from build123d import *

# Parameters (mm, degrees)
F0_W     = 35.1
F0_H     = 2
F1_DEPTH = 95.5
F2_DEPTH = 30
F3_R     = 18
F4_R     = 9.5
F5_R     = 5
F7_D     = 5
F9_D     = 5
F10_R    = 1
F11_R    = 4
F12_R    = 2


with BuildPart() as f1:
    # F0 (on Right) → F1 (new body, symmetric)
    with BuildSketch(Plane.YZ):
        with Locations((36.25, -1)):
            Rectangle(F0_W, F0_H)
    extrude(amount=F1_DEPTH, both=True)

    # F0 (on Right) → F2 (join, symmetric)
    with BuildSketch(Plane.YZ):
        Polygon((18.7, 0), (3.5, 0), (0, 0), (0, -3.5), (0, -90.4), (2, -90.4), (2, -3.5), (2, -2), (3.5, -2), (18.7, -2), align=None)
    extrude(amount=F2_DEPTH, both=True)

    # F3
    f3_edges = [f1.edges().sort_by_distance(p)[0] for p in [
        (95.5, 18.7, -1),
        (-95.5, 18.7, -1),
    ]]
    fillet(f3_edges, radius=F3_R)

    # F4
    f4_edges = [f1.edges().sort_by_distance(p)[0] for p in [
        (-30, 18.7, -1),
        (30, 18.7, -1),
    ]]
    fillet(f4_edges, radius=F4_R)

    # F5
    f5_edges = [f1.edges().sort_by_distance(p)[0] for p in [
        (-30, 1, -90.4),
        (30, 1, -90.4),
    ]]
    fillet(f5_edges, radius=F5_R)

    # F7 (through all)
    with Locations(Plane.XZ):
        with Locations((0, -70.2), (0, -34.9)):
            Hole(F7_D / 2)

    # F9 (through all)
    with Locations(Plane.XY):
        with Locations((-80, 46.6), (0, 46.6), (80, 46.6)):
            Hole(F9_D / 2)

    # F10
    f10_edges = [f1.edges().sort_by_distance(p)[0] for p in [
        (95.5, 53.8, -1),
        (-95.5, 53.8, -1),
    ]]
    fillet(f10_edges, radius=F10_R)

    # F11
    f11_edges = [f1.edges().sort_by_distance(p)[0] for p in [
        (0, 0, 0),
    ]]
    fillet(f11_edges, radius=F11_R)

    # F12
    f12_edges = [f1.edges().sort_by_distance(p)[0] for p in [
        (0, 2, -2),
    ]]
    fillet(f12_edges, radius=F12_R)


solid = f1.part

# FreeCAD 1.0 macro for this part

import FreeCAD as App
import Part
import Sketcher
from FreeCAD import Vector
Q = App.Units.Quantity


def edges_at(feature, points):
    """Names of the edges that pass closest to the given points."""
    edges = feature.Shape.Edges
    near = lambda p: min(range(len(edges)), key=lambda i: edges[i].distToShape(Part.Vertex(*p))[0])
    return sorted({f"Edge{near(p) + 1}" for p in points})

doc = App.newDocument("Part")
body = doc.addObject("PartDesign::Body", "Body")

# Sketch on YZ plane
sketch1 = doc.addObject("Sketcher::SketchObject", "Sketch")
body.addObject(sketch1)
sketch1.AttachmentSupport = (doc.YZ_Plane, [""])
sketch1.MapMode = "FlatFace"
sketch1.addGeometry(Part.LineSegment(Vector(18.7, 0, 0), Vector(18.7, -2, 0)), False)
sketch1.addGeometry(Part.LineSegment(Vector(18.7, -2, 0), Vector(53.8, -2, 0)), False)
sketch1.addGeometry(Part.LineSegment(Vector(53.8, -2, 0), Vector(53.8, 0, 0)), False)
sketch1.addGeometry(Part.LineSegment(Vector(53.8, 0, 0), Vector(18.7, 0, 0)), False)
sketch1.addConstraint(Sketcher.Constraint("Coincident", 0, 2, 1, 1))
sketch1.addConstraint(Sketcher.Constraint("Coincident", 1, 2, 2, 1))
sketch1.addConstraint(Sketcher.Constraint("Coincident", 2, 2, 3, 1))
sketch1.addConstraint(Sketcher.Constraint("Coincident", 3, 2, 0, 1))
sketch1.addConstraint(Sketcher.Constraint("Vertical", 0))
sketch1.addConstraint(Sketcher.Constraint("Horizontal", 1))
sketch1.addConstraint(Sketcher.Constraint("Vertical", 2))
sketch1.addConstraint(Sketcher.Constraint("Horizontal", 3))
sketch1.addConstraint(Sketcher.Constraint("PointOnObject", 2, 2, -1))
sketch1.addConstraint(Sketcher.Constraint("DistanceY", 0, 2, 0, 1, Q("2 mm")))
sketch1.addConstraint(Sketcher.Constraint("DistanceX", 1, 1, 1, 2, Q("35.1 mm")))
sketch1.addConstraint(Sketcher.Constraint("DistanceX", -1, 1, 0, 2, Q("18.7 mm")))
pad1 = doc.addObject("PartDesign::Pad", "Pad")
body.addObject(pad1)
pad1.Profile = sketch1
pad1.Length = 191
pad1.Midplane = True

# Sketch on YZ plane
sketch2 = doc.addObject("Sketcher::SketchObject", "Sketch001")
body.addObject(sketch2)
sketch2.AttachmentSupport = (doc.YZ_Plane, [""])
sketch2.MapMode = "FlatFace"
sketch2.addGeometry(Part.LineSegment(Vector(18.7, 0, 0), Vector(0, 0, 0)), False)
sketch2.addGeometry(Part.LineSegment(Vector(0, 0, 0), Vector(0, -90.4, 0)), False)
sketch2.addGeometry(Part.LineSegment(Vector(0, -90.4, 0), Vector(2, -90.4, 0)), False)
sketch2.addGeometry(Part.LineSegment(Vector(2, -90.4, 0), Vector(2, -2, 0)), False)
sketch2.addGeometry(Part.LineSegment(Vector(2, -2, 0), Vector(18.7, -2, 0)), False)
sketch2.addGeometry(Part.LineSegment(Vector(18.7, -2, 0), Vector(18.7, 0, 0)), False)
sketch2.addConstraint(Sketcher.Constraint("Coincident", 0, 2, 1, 1))
sketch2.addConstraint(Sketcher.Constraint("Coincident", 1, 2, 2, 1))
sketch2.addConstraint(Sketcher.Constraint("Coincident", 2, 2, 3, 1))
sketch2.addConstraint(Sketcher.Constraint("Coincident", 3, 2, 4, 1))
sketch2.addConstraint(Sketcher.Constraint("Coincident", 4, 2, 5, 1))
sketch2.addConstraint(Sketcher.Constraint("Coincident", 5, 2, 0, 1))
sketch2.addConstraint(Sketcher.Constraint("Horizontal", 0))
sketch2.addConstraint(Sketcher.Constraint("Vertical", 1))
sketch2.addConstraint(Sketcher.Constraint("Horizontal", 2))
sketch2.addConstraint(Sketcher.Constraint("Vertical", 3))
sketch2.addConstraint(Sketcher.Constraint("Horizontal", 4))
sketch2.addConstraint(Sketcher.Constraint("Vertical", 5))
sketch2.addConstraint(Sketcher.Constraint("Coincident", 0, 2, -1, 1))
sketch2.addConstraint(Sketcher.Constraint("Equal", 2, 5))
sketch2.addConstraint(Sketcher.Constraint("DistanceX", 2, 1, 2, 2, Q("2 mm")))
sketch2.addConstraint(Sketcher.Constraint("DistanceX", 0, 2, 0, 1, Q("18.7 mm")))
sketch2.addConstraint(Sketcher.Constraint("DistanceY", 1, 2, 1, 1, Q("90.4 mm")))
pad2 = doc.addObject("PartDesign::Pad", "Pad001")
body.addObject(pad2)
pad2.Profile = sketch2
pad2.Length = 60
pad2.Midplane = True
doc.recompute()

fillet = doc.addObject("PartDesign::Fillet", "Fillet")
body.addObject(fillet)
fillet.Base = (pad2, edges_at(pad2, [(95.5, 18.7, -1), (-95.5, 18.7, -1)]))
fillet.Radius = 18
doc.recompute()

fillet2 = doc.addObject("PartDesign::Fillet", "Fillet001")
body.addObject(fillet2)
fillet2.Base = (fillet, edges_at(fillet, [(-30, 18.7, -1), (30, 18.7, -1)]))
fillet2.Radius = 9.5
doc.recompute()

fillet3 = doc.addObject("PartDesign::Fillet", "Fillet002")
body.addObject(fillet3)
fillet3.Base = (fillet2, edges_at(fillet2, [(-30, 1, -90.4), (30, 1, -90.4)]))
fillet3.Radius = 5

# Sketch on XZ plane
sketch3 = doc.addObject("Sketcher::SketchObject", "Sketch002")
body.addObject(sketch3)
sketch3.AttachmentSupport = (doc.XZ_Plane, [""])
sketch3.MapMode = "FlatFace"
sketch3.addGeometry(Part.Circle(Vector(0, -70.2, 0), Vector(0, 0, 1), 2.5), False)
sketch3.addGeometry(Part.Circle(Vector(0, -34.9, 0), Vector(0, 0, 1), 2.5), False)
sketch3.addConstraint(Sketcher.Constraint("Equal", 0, 1))
sketch3.addConstraint(Sketcher.Constraint("PointOnObject", 0, 3, -2))
sketch3.addConstraint(Sketcher.Constraint("PointOnObject", 1, 3, -2))
sketch3.addConstraint(Sketcher.Constraint("Diameter", 0, Q("5 mm")))
sketch3.addConstraint(Sketcher.Constraint("DistanceY", 0, 3, -1, 1, Q("70.2 mm")))
sketch3.addConstraint(Sketcher.Constraint("DistanceY", 1, 3, -1, 1, Q("34.9 mm")))
doc.recompute()
hole = doc.addObject("PartDesign::Hole", "Hole")
body.addObject(hole)
hole.Profile = sketch3
hole.ThreadType = "None"
hole.Diameter = 5
hole.DepthType = "ThroughAll"

# Sketch on XY plane
sketch4 = doc.addObject("Sketcher::SketchObject", "Sketch003")
body.addObject(sketch4)
sketch4.AttachmentSupport = (doc.XY_Plane, [""])
sketch4.MapMode = "FlatFace"
sketch4.addGeometry(Part.Circle(Vector(-80, 46.6, 0), Vector(0, 0, 1), 2.5), False)
sketch4.addGeometry(Part.Circle(Vector(0, 46.6, 0), Vector(0, 0, 1), 2.5), False)
sketch4.addGeometry(Part.Circle(Vector(80, 46.6, 0), Vector(0, 0, 1), 2.5), False)
sketch4.addConstraint(Sketcher.Constraint("Equal", 0, 1))
sketch4.addConstraint(Sketcher.Constraint("Equal", 1, 2))
sketch4.addConstraint(Sketcher.Constraint("Symmetric", 0, 3, 2, 3, -2))
sketch4.addConstraint(Sketcher.Constraint("PointOnObject", 1, 3, -2))
sketch4.addConstraint(Sketcher.Constraint("Horizontal", 0, 3, 1, 3))
sketch4.addConstraint(Sketcher.Constraint("Diameter", 0, Q("5 mm")))
sketch4.addConstraint(Sketcher.Constraint("DistanceX", 0, 3, -1, 1, Q("80 mm")))
sketch4.addConstraint(Sketcher.Constraint("DistanceY", -1, 1, 0, 3, Q("46.6 mm")))
doc.recompute()
hole2 = doc.addObject("PartDesign::Hole", "Hole001")
body.addObject(hole2)
hole2.Profile = sketch4
hole2.ThreadType = "None"
hole2.Diameter = 5
hole2.DepthType = "ThroughAll"
doc.recompute()

fillet4 = doc.addObject("PartDesign::Fillet", "Fillet003")
body.addObject(fillet4)
fillet4.Base = (hole2, edges_at(hole2, [(95.5, 53.8, -1), (-95.5, 53.8, -1)]))
fillet4.Radius = 1
doc.recompute()

fillet5 = doc.addObject("PartDesign::Fillet", "Fillet004")
body.addObject(fillet5)
fillet5.Base = (fillet4, edges_at(fillet4, [(0, 0, 0)]))
fillet5.Radius = 4
doc.recompute()

fillet6 = doc.addObject("PartDesign::Fillet", "Fillet005")
body.addObject(fillet6)
fillet6.Base = (fillet5, edges_at(fillet5, [(0, 2, -2)]))
fillet6.Radius = 2

doc.recompute()
